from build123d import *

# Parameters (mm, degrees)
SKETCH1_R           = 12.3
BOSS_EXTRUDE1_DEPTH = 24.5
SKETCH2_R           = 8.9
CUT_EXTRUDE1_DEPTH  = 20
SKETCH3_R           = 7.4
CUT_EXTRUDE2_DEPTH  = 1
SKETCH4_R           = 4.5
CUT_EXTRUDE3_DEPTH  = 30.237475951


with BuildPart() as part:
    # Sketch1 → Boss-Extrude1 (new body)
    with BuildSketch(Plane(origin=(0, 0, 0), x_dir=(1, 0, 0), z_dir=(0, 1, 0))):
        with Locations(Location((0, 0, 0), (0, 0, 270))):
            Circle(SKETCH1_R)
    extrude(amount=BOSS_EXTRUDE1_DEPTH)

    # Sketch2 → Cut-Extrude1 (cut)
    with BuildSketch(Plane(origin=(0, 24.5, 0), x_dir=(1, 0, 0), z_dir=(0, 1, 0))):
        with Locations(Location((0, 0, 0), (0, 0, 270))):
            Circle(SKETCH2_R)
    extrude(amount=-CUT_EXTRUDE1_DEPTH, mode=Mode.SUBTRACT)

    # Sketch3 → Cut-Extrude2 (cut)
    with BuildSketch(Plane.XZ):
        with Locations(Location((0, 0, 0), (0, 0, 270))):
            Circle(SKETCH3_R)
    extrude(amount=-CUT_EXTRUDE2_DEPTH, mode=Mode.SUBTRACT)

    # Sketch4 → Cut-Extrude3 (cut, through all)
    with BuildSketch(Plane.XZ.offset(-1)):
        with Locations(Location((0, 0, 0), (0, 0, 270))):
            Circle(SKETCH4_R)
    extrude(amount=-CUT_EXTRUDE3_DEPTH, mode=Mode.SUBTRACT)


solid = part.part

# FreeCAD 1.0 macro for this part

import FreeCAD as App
import Part
import Sketcher
from FreeCAD import Vector

doc = App.newDocument("Part")
body = doc.addObject("PartDesign::Body", "Body")

sketch1 = body.newObject("Sketcher::SketchObject", "Sketch")
sketch1.AttachmentSupport = (doc.getObject("XZ_Plane"), [""])
sketch1.MapMode = "FlatFace"
sketch1.addGeometry(Part.Circle(Vector(0, 0, 0), Vector(0, 0, 1), 12), False)
sketch1.addConstraint(Sketcher.Constraint("Coincident", 0, 3, -1, 1))
sketch1.addConstraint(Sketcher.Constraint("Diameter", 0, 24.6))
pad1 = body.newObject("PartDesign::Pad", "Pad")
pad1.Profile = sketch1
pad1.Length = 24.5
pad1.Reversed = True

sketch2 = body.newObject("Sketcher::SketchObject", "Sketch001")
sketch2.AttachmentSupport = (doc.getObject("XZ_Plane"), [""])
sketch2.MapMode = "FlatFace"
sketch2.AttachmentOffset = App.Placement(Vector(0, 0, -24.5), App.Rotation())
sketch2.addGeometry(Part.Circle(Vector(0, 0, 0), Vector(0, 0, 1), 9), False)
sketch2.addConstraint(Sketcher.Constraint("Coincident", 0, 3, -1, 1))
sketch2.addConstraint(Sketcher.Constraint("Diameter", 0, 17.8))
pocket1 = body.newObject("PartDesign::Pocket", "Pocket")
pocket1.Profile = sketch2
pocket1.Length = 20
pocket1.Reversed = True

sketch3 = body.newObject("Sketcher::SketchObject", "Sketch002")
sketch3.AttachmentSupport = (doc.getObject("XZ_Plane"), [""])
sketch3.MapMode = "FlatFace"
sketch3.addGeometry(Part.Circle(Vector(0, 0, 0), Vector(0, 0, 1), 7), False)
sketch3.addConstraint(Sketcher.Constraint("Coincident", 0, 3, -1, 1))
sketch3.addConstraint(Sketcher.Constraint("Diameter", 0, 14.8))
pocket2 = body.newObject("PartDesign::Pocket", "Pocket001")
pocket2.Profile = sketch3
pocket2.Length = 1

sketch4 = body.newObject("Sketcher::SketchObject", "Sketch003")
sketch4.AttachmentSupport = (doc.getObject("XZ_Plane"), [""])
sketch4.MapMode = "FlatFace"
sketch4.AttachmentOffset = App.Placement(Vector(0, 0, -1), App.Rotation())
sketch4.addGeometry(Part.Circle(Vector(0, 0, 0), Vector(0, 0, 1), 4.5), False)
sketch4.addConstraint(Sketcher.Constraint("Coincident", 0, 3, -1, 1))
sketch4.addConstraint(Sketcher.Constraint("Diameter", 0, 9.0))
pocket3 = body.newObject("PartDesign::Pocket", "Pocket002")
pocket3.Profile = sketch4
pocket3.Type = "ThroughAll"

doc.recompute()
